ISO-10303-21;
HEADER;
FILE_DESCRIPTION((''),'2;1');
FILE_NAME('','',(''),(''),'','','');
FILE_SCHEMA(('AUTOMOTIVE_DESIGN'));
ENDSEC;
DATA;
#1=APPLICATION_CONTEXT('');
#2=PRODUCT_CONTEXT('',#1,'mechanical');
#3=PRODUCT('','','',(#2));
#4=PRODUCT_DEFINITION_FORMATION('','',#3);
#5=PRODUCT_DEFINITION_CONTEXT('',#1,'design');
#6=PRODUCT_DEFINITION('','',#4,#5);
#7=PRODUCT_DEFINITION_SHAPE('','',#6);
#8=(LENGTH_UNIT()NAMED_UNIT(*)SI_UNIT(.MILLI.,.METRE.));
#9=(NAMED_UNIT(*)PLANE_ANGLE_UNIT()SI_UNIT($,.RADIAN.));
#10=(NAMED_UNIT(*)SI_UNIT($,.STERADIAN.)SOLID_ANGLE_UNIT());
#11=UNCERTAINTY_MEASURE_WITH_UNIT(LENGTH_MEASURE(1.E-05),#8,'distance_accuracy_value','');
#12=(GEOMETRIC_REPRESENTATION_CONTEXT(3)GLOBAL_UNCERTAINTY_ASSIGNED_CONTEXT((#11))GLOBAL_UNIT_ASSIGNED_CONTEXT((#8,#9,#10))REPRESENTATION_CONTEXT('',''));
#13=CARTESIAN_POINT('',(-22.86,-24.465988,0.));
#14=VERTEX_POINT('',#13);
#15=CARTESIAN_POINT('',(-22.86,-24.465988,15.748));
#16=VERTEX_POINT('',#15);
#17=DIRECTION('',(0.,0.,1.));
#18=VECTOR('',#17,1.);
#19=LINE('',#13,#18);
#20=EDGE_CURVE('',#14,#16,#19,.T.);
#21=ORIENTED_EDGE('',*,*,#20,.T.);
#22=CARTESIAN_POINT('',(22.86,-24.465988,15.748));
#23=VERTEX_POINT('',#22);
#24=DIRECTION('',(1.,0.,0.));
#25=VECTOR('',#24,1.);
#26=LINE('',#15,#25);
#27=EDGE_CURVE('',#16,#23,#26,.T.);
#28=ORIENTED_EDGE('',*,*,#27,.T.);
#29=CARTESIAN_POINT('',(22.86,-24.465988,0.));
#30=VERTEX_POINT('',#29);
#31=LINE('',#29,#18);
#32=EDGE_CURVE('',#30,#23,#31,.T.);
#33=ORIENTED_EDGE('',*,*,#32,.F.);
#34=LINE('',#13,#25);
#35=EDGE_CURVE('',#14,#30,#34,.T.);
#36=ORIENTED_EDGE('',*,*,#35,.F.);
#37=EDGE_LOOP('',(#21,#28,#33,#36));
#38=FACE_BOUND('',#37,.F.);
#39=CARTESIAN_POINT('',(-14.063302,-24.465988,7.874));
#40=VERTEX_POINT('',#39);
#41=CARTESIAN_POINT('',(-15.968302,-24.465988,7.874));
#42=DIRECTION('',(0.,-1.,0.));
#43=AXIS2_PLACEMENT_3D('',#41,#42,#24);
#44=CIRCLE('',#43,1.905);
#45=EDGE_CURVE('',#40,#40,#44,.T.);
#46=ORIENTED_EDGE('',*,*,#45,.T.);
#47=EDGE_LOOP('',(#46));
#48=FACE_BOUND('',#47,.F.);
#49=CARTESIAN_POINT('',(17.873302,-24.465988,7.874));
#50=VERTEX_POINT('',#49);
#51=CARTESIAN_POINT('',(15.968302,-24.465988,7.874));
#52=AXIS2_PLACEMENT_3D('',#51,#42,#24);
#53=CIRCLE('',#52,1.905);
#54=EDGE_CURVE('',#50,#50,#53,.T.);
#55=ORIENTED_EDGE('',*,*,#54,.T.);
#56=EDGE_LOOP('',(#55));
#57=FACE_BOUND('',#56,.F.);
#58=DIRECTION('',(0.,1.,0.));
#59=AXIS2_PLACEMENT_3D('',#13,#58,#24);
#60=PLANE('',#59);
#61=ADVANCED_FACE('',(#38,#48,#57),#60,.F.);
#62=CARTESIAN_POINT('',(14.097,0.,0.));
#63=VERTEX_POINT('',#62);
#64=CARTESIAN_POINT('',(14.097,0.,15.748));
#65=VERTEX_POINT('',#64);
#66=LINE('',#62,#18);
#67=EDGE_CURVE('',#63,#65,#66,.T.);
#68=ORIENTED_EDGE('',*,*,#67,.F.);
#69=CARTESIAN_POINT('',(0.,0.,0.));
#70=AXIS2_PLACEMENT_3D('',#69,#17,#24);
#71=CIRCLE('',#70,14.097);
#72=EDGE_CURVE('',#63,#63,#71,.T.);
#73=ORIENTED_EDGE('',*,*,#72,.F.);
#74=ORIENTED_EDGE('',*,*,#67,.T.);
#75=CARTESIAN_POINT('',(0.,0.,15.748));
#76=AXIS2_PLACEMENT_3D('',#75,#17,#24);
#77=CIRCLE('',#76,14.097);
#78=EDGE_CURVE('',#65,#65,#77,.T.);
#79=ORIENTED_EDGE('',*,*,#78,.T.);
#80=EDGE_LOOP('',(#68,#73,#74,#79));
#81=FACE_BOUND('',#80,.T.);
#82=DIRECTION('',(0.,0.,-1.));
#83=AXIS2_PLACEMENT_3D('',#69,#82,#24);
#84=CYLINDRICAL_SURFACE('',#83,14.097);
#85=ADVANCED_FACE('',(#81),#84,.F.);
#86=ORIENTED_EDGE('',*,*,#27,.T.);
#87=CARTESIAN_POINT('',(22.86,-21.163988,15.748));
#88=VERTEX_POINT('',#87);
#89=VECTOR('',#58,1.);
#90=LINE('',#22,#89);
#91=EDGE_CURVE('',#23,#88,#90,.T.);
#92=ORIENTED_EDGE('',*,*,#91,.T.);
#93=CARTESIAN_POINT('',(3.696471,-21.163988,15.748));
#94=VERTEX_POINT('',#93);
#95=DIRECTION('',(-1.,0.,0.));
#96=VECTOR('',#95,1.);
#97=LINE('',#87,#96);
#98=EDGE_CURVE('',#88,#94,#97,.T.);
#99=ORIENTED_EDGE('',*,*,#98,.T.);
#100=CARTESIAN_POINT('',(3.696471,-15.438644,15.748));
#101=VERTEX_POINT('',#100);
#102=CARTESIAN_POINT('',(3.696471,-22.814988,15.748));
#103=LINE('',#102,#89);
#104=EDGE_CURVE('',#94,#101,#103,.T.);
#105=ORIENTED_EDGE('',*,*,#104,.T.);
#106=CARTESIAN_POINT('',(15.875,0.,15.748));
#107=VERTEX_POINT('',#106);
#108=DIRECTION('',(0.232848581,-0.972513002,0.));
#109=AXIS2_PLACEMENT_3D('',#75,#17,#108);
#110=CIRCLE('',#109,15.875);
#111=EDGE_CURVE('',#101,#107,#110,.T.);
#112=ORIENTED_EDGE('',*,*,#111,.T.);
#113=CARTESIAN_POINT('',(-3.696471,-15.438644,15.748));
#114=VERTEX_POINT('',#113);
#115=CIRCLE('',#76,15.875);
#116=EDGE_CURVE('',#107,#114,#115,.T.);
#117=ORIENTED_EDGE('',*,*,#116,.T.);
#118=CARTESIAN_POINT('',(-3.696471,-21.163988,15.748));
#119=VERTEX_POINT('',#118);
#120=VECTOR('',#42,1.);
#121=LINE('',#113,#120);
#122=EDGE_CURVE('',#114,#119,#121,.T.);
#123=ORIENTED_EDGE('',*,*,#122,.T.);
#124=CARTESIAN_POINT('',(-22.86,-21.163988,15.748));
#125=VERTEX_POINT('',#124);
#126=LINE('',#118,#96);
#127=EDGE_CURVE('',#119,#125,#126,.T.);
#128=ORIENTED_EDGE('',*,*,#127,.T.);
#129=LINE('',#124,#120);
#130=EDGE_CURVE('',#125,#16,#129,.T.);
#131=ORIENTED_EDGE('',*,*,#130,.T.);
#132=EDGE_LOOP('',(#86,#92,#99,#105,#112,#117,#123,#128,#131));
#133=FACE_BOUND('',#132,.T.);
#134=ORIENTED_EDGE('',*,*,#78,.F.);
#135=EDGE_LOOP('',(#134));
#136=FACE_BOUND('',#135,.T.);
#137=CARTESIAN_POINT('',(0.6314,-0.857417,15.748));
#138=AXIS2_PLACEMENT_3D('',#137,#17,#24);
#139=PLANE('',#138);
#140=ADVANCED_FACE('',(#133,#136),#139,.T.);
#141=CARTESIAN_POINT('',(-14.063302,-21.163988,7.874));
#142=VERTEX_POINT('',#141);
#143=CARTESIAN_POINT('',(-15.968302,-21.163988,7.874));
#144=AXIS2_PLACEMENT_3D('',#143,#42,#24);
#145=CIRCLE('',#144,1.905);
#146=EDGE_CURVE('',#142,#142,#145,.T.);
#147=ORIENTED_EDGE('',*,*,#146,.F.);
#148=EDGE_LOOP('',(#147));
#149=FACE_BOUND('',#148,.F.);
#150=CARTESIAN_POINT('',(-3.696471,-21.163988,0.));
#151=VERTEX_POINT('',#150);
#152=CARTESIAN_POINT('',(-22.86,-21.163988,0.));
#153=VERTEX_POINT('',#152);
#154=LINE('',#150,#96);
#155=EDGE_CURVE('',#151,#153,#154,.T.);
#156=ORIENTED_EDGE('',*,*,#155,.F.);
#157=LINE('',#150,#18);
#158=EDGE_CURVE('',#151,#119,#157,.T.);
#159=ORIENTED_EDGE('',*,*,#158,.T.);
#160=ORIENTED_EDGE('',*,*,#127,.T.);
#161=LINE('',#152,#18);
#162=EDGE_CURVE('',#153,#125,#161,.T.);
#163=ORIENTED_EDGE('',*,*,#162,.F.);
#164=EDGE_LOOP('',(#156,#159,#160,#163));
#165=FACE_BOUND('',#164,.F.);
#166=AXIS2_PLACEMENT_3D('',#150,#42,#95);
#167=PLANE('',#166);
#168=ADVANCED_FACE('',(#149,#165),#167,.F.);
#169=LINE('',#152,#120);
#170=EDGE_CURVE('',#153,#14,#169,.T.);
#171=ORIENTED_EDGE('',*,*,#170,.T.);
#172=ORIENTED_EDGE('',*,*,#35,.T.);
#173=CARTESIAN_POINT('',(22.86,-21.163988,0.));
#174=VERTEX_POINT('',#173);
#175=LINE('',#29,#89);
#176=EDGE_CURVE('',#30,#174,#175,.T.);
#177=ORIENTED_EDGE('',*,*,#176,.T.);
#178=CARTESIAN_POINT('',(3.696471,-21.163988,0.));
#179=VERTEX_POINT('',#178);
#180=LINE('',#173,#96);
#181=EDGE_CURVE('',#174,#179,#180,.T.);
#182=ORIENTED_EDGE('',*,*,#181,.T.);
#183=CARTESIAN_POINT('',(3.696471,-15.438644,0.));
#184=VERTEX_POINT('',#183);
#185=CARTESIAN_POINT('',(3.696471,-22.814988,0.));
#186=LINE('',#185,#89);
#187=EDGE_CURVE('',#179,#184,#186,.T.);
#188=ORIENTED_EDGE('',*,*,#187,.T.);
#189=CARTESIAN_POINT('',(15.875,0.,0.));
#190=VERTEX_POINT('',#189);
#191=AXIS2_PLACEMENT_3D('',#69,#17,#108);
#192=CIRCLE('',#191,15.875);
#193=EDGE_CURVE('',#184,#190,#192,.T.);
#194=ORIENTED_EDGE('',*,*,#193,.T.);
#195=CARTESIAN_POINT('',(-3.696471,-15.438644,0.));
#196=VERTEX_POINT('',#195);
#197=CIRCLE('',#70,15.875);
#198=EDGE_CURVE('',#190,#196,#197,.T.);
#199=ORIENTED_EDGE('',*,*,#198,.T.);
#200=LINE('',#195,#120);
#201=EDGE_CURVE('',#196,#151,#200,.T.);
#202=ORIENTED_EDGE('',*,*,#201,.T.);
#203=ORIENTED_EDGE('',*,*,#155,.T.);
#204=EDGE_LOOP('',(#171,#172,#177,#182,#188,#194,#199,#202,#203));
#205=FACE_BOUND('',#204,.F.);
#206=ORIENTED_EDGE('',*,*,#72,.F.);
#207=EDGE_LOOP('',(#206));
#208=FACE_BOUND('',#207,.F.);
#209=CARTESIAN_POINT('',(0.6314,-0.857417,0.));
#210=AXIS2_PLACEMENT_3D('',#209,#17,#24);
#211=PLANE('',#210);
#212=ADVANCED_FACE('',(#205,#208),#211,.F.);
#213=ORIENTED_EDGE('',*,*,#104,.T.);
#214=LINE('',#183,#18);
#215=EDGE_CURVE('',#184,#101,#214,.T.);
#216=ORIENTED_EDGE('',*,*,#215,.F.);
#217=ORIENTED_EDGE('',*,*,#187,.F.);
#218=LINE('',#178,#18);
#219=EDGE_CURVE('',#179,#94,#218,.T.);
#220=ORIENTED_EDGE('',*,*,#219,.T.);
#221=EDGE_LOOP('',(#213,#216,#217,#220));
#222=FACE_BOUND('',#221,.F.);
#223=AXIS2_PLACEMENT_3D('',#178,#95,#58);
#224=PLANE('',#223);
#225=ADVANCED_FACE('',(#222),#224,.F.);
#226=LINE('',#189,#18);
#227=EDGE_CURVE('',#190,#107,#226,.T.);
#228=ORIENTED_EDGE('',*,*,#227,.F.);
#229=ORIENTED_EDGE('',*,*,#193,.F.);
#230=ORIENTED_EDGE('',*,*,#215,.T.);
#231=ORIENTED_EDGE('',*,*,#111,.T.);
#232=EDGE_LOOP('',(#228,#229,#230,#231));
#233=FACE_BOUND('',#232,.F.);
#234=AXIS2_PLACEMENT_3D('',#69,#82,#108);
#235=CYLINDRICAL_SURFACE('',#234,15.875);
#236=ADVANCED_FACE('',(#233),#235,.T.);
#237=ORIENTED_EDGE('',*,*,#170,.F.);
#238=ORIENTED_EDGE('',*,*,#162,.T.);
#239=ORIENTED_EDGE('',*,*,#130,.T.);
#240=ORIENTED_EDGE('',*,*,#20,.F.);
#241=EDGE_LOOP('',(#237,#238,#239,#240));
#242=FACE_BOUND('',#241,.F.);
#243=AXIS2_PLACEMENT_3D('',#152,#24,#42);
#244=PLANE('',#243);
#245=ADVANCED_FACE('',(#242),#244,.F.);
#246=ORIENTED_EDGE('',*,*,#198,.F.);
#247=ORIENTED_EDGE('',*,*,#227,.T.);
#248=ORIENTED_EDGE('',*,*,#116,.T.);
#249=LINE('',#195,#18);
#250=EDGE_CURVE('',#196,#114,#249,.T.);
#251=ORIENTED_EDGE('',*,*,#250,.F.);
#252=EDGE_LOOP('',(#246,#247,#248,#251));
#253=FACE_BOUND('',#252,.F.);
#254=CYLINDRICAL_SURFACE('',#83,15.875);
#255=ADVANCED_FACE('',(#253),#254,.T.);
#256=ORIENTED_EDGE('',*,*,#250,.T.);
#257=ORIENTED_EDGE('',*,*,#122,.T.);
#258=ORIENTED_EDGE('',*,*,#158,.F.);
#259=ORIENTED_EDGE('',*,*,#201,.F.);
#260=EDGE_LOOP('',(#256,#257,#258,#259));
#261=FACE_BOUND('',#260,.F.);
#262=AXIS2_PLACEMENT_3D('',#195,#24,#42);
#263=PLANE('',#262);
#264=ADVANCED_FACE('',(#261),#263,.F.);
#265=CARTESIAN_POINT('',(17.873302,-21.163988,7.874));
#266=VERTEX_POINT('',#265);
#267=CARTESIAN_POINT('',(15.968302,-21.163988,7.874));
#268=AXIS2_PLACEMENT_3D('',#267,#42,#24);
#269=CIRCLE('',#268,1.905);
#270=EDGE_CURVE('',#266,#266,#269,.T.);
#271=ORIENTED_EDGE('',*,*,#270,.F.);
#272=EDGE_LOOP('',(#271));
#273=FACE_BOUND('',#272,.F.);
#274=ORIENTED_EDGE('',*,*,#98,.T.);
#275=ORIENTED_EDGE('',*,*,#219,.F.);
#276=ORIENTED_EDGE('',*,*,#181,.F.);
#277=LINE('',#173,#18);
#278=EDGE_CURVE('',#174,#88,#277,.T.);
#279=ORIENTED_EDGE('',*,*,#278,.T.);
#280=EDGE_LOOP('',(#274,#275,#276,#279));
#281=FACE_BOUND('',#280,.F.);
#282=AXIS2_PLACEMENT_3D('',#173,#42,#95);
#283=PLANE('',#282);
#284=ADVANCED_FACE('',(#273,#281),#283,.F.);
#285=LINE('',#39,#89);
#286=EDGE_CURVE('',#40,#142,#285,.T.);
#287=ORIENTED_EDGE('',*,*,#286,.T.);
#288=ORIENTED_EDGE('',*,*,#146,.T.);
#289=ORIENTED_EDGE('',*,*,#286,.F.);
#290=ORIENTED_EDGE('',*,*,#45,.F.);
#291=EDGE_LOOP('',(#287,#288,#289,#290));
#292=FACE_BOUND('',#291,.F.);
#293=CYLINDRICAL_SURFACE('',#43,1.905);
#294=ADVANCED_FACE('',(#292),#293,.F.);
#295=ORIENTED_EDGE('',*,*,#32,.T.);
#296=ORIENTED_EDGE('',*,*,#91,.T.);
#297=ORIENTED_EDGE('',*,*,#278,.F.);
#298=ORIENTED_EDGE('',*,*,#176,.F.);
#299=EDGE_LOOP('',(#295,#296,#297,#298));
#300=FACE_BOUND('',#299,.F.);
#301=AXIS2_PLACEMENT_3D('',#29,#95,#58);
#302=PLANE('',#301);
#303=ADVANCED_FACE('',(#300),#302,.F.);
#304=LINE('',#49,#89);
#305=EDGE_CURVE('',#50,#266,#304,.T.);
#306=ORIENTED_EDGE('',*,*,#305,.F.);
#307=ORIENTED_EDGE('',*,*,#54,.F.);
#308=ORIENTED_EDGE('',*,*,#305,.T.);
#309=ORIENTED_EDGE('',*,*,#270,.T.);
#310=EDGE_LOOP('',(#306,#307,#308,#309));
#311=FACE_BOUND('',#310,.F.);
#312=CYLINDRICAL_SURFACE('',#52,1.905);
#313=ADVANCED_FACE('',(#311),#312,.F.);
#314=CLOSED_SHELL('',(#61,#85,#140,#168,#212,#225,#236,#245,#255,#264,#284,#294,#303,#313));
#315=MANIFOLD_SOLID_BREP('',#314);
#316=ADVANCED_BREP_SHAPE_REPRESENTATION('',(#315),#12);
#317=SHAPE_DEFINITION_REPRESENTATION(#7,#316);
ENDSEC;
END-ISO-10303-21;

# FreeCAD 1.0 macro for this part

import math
import FreeCAD as App
import Part
import Sketcher
from FreeCAD import Vector
Q = App.Units.Quantity

doc = App.newDocument("Part")
body = doc.addObject("PartDesign::Body", "Body")

# Sketch on XY plane
sketch1 = body.newObject("Sketcher::SketchObject", "Sketch")
sketch1.AttachmentSupport = (doc.getObject("XY_Plane"), [""])
sketch1.MapMode = "FlatFace"
sketch1.addGeometry([
    Part.ArcOfCircle(Part.Circle(Vector(0, 0, 0), Vector(0, 0, 1), 15.875), math.radians(-76.535162), math.radians(0)),  # 0
    Part.ArcOfCircle(Part.Circle(Vector(0, 0, 0), Vector(0, 0, 1), 15.875), math.radians(0), math.radians(256.535162)),  # 1
    Part.LineSegment(Vector(-3.696471, -15.438644, 0), Vector(-3.696471, -21.163988, 0)),  # 2
    Part.LineSegment(Vector(-3.696471, -21.163988, 0), Vector(-22.86, -21.163988, 0)),  # 3
    Part.LineSegment(Vector(-22.86, -21.163988, 0), Vector(-22.86, -24.465988, 0)),  # 4
    Part.LineSegment(Vector(-22.86, -24.465988, 0), Vector(22.86, -24.465988, 0)),  # 5
    Part.LineSegment(Vector(22.86, -24.465988, 0), Vector(22.86, -21.163988, 0)),  # 6
    Part.LineSegment(Vector(22.86, -21.163988, 0), Vector(3.696471, -21.163988, 0)),  # 7
    Part.LineSegment(Vector(3.696471, -21.163988, 0), Vector(3.696471, -15.438644, 0)),  # 8
    Part.Circle(Vector(0, 0, 0), Vector(0, 0, 1), 14.097),  # 9
], False)
sketch1.addConstraint([
    Sketcher.Constraint("Tangent", 0, 2, 1, 1),
    Sketcher.Constraint("Coincident", 1, 2, 2, 1),
    Sketcher.Constraint("Coincident", 2, 2, 3, 1),
    Sketcher.Constraint("Coincident", 3, 2, 4, 1),
    Sketcher.Constraint("Coincident", 4, 2, 5, 1),
    Sketcher.Constraint("Coincident", 5, 2, 6, 1),
    Sketcher.Constraint("Coincident", 6, 2, 7, 1),
    Sketcher.Constraint("Coincident", 7, 2, 8, 1),
    Sketcher.Constraint("Coincident", 8, 2, 0, 1),
    Sketcher.Constraint("Vertical", 2),
    Sketcher.Constraint("Horizontal", 3),
    Sketcher.Constraint("Vertical", 4),
    Sketcher.Constraint("Horizontal", 5),
    Sketcher.Constraint("Vertical", 6),
    Sketcher.Constraint("Horizontal", 7),
    Sketcher.Constraint("Vertical", 8),
    Sketcher.Constraint("Coincident", 0, 3, -1, 1),
    Sketcher.Constraint("Coincident", 9, 3, -1, 1),
    Sketcher.Constraint("Equal", 0, 1),
    Sketcher.Constraint("Symmetric", 3, 2, 6, 2, -2),
    Sketcher.Constraint("PointOnObject", 0, 2, -1),
    Sketcher.Constraint("Horizontal", 1, 2, 8, 2),
    Sketcher.Constraint("Diameter", 9, Q("1.11 in")),
    Sketcher.Constraint("DistanceX", 5, 1, 5, 2, Q("1.8 in")),
    Sketcher.Constraint("Radius", 0, Q("0.625 in")),
    Sketcher.Constraint("DistanceY", 4, 2, 4, 1, Q("0.13 in")),
    Sketcher.Constraint("DistanceX", 3, 2, 3, 1, Q("19.163529 mm")),
    Sketcher.Constraint("DistanceY", 2, 2, 2, 1, Q("5.725345 mm")),
])
pad1 = body.newObject("PartDesign::Pad", "Pad")
pad1.Profile = sketch1
pad1.Length = Q("0.62 in")

# Sketch on XZ plane
sketch2 = body.newObject("Sketcher::SketchObject", "Sketch001")
sketch2.AttachmentSupport = (doc.getObject("XZ_Plane"), [""])
sketch2.MapMode = "FlatFace"
sketch2.AttachmentOffset = App.Placement(Vector(0, 0, 24.465988), App.Rotation())
sketch2.addGeometry([
    Part.Circle(Vector(-15.968302, 7.874, 0), Vector(0, 0, 1), 1.905),
    Part.Circle(Vector(15.968302, 7.874, 0), Vector(0, 0, 1), 1.905),
], False)
sketch2.addConstraint([
    Sketcher.Constraint("Equal", 0, 1),
    Sketcher.Constraint("Symmetric", 0, 3, 1, 3, -2),
    Sketcher.Constraint("Diameter", 0, Q("0.15 in")),
    Sketcher.Constraint("DistanceY", -1, 1, 0, 3, Q("0.31 in")),
    Sketcher.Constraint("DistanceX", 0, 3, -1, 1, Q("15.968302 mm")),
])
pocket1 = body.newObject("PartDesign::Pocket", "Pocket")
pocket1.Profile = sketch2
pocket1.Length = Q("0.373 in")

doc.recompute()
